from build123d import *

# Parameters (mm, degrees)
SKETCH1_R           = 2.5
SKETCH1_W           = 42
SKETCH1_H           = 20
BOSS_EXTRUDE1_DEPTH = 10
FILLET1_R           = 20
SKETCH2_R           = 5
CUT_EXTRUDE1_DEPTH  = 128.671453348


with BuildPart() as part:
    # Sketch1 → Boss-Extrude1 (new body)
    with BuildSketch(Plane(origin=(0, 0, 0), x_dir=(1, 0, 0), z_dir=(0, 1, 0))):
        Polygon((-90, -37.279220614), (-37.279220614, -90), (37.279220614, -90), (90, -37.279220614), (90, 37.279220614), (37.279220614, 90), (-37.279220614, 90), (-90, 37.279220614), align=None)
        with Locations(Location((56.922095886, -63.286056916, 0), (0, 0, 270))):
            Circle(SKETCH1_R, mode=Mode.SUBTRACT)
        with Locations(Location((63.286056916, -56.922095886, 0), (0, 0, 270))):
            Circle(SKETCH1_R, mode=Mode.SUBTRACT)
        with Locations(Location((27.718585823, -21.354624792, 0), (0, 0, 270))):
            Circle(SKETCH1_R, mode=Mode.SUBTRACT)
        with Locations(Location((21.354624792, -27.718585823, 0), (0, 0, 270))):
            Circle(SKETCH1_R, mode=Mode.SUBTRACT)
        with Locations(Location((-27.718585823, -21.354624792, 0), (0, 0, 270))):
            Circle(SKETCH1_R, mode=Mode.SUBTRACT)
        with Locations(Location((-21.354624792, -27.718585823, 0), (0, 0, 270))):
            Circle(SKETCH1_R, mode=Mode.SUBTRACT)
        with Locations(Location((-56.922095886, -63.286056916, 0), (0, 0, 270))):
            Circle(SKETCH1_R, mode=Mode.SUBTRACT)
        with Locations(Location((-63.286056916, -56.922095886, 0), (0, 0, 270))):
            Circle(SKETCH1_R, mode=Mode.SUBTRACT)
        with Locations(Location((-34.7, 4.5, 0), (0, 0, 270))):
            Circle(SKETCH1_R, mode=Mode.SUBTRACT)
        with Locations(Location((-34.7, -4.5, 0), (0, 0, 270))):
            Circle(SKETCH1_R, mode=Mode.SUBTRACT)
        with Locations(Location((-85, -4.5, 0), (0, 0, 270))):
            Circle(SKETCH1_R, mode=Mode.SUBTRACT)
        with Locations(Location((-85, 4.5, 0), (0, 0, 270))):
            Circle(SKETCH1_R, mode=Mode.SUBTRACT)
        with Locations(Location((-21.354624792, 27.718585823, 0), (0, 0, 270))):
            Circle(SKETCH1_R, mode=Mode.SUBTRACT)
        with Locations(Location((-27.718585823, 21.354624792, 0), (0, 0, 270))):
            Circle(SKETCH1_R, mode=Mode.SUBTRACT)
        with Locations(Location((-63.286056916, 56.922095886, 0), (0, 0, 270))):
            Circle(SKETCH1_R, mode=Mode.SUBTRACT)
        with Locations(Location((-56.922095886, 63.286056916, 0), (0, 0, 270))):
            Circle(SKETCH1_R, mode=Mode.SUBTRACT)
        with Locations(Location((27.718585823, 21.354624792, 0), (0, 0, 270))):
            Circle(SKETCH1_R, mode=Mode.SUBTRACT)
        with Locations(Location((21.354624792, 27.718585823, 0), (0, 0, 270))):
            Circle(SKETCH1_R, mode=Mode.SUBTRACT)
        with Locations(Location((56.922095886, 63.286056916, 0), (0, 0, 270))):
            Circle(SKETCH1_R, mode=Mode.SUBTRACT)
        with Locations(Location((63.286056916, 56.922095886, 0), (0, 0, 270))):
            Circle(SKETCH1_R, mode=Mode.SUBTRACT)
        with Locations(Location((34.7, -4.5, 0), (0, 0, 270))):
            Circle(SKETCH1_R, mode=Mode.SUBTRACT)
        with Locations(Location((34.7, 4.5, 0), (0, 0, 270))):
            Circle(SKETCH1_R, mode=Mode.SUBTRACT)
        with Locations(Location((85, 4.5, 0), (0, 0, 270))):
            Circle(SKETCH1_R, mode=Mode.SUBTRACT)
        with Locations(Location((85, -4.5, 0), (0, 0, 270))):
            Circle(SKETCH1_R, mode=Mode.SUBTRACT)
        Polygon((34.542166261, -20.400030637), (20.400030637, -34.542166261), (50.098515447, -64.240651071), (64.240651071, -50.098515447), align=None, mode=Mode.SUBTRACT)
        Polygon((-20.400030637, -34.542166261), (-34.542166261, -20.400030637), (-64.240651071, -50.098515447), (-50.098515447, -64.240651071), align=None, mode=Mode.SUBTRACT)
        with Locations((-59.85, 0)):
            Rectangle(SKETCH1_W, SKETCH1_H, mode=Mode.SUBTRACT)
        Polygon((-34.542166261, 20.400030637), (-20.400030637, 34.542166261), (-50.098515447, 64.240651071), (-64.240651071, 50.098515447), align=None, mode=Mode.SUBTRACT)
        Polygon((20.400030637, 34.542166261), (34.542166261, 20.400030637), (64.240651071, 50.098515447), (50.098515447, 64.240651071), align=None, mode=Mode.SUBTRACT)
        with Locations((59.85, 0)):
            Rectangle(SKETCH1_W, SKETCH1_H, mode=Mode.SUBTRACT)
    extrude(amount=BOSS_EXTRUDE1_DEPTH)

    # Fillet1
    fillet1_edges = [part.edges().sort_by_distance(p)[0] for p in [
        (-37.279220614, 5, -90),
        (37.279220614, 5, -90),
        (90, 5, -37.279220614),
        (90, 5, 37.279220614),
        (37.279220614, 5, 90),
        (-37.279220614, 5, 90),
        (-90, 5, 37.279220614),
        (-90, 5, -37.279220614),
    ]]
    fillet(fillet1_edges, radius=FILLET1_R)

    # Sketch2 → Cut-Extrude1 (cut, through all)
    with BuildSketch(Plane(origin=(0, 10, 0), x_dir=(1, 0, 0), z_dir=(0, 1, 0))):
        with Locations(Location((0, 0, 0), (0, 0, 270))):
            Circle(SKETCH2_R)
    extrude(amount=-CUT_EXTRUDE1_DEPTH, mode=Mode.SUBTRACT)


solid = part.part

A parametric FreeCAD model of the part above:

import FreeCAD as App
import Part
import Sketcher

V = App.Vector
Q = App.Units.Quantity


def edges_at(feature, points):
    """Names of the edges that pass closest to the given points."""
    edges = feature.Shape.Edges
    near = lambda p: min(range(len(edges)), key=lambda i: edges[i].distToShape(Part.Vertex(*p))[0])
    return sorted({f"Edge{near(p) + 1}" for p in points})


def add_polygon(sketch, points):
    """Adds a closed chain of lines whose ends are joined by coincident constraints."""
    first, n = sketch.GeometryCount, len(points)
    for a, b in zip(points, points[1:] + points[:1]):
        sketch.addGeometry(Part.LineSegment(App.Vector(*a, 0), App.Vector(*b, 0)), False)
    for i in range(n):
        sketch.addConstraint(Sketcher.Constraint("Coincident", first + i, 2, first + (i + 1) % n, 1))

doc = App.newDocument("Part")
params = doc.addObject("Spreadsheet::Sheet", "Params")
for row, (alias, value) in enumerate([
    ("sketch1_diameter", "5 mm"),
    ("sketch1_width", "42 mm"),
    ("sketch1_height", "20 mm"),
    ("sketch1_length", "20 mm"),
    ("sketch1_length2", "42 mm"),
    ("pad1_length", "10 mm"),
    ("fillet_radius", "20 mm"),
    ("sketch2_diameter", "10 mm"),
], start=1):
    params.set(f"A{row}", alias)
    params.set(f"B{row}", "=" + value)
    params.setAlias(f"B{row}", alias)

body = doc.addObject("PartDesign::Body", "Body")

# Sketch on XZ plane
sketch1 = body.newObject("Sketcher::SketchObject", "Sketch")
sketch1.AttachmentSupport = (doc.getObject("XZ_Plane"), [""])
sketch1.MapMode = "FlatFace"
add_polygon(sketch1, [(-90, 37.3), (-37.3, 90), (37.3, 90), (90, 37.3), (90, -37.3), (37.3, -90), (-37.3, -90), (-90, -37.3)])  # lines 0-7
sketch1.addGeometry(Part.Circle(V(-56.9, 63.3, 0), V(0, 0, 1), 2.5), False)  # 8
sketch1.addGeometry(Part.Circle(V(-63.3, 56.9, 0), V(0, 0, 1), 2.5), False)  # 9
add_polygon(sketch1, [(-34.5, 20.4), (-20.4, 34.5), (-50.1, 64.2), (-64.2, 50.1)])  # lines 10-13
sketch1.addGeometry(Part.Circle(V(-85, 4.5, 0), V(0, 0, 1), 2.5), False)  # 14
sketch1.addGeometry(Part.Circle(V(-27.7, 21.4, 0), V(0, 0, 1), 2.5), False)  # 15
sketch1.addGeometry(Part.Circle(V(-21.4, 27.7, 0), V(0, 0, 1), 2.5), False)  # 16
sketch1.addGeometry(Part.Circle(V(-34.7, 4.5, 0), V(0, 0, 1), 2.5), False)  # 17
add_polygon(sketch1, [(20.4, 34.5), (34.5, 20.4), (64.2, 50.1), (50.1, 64.2)])  # lines 18-21
sketch1.addGeometry(Part.Circle(V(56.9, 63.3, 0), V(0, 0, 1), 2.5), False)  # 22
sketch1.addGeometry(Part.Circle(V(63.3, 56.9, 0), V(0, 0, 1), 2.5), False)  # 23
sketch1.addGeometry(Part.Circle(V(21.4, 27.7, 0), V(0, 0, 1), 2.5), False)  # 24
sketch1.addGeometry(Part.Circle(V(27.7, 21.4, 0), V(0, 0, 1), 2.5), False)  # 25
sketch1.addGeometry(Part.Circle(V(34.7, 4.5, 0), V(0, 0, 1), 2.5), False)  # 26
sketch1.addGeometry(Part.Circle(V(85, 4.5, 0), V(0, 0, 1), 2.5), False)  # 27
sketch1.addGeometry(Part.Circle(V(-85, -4.5, 0), V(0, 0, 1), 2.5), False)  # 28
add_polygon(sketch1, [(-38.9, 10), (-80.8, 10), (-80.8, -10), (-38.9, -10)])  # lines 29-32
sketch1.addGeometry(Part.Circle(V(-34.7, -4.5, 0), V(0, 0, 1), 2.5), False)  # 33
sketch1.addGeometry(Part.Circle(V(-27.7, -21.4, 0), V(0, 0, 1), 2.5), False)  # 34
sketch1.addGeometry(Part.Circle(V(-21.4, -27.7, 0), V(0, 0, 1), 2.5), False)  # 35
sketch1.addGeometry(Part.Circle(V(-63.3, -56.9, 0), V(0, 0, 1), 2.5), False)  # 36
sketch1.addGeometry(Part.Circle(V(-56.9, -63.3, 0), V(0, 0, 1), 2.5), False)  # 37
add_polygon(sketch1, [(-20.4, -34.5), (-34.5, -20.4), (-64.2, -50.1), (-50.1, -64.2)])  # lines 38-41
sketch1.addGeometry(Part.Circle(V(34.7, -4.5, 0), V(0, 0, 1), 2.5), False)  # 42
sketch1.addGeometry(Part.Circle(V(21.4, -27.7, 0), V(0, 0, 1), 2.5), False)  # 43
sketch1.addGeometry(Part.Circle(V(27.7, -21.4, 0), V(0, 0, 1), 2.5), False)  # 44
add_polygon(sketch1, [(80.8, 10), (38.9, 10), (38.9, -10), (80.8, -10)])  # lines 45-48
sketch1.addGeometry(Part.Circle(V(85, -4.5, 0), V(0, 0, 1), 2.5), False)  # 49
add_polygon(sketch1, [(34.5, -20.4), (20.4, -34.5), (50.1, -64.2), (64.2, -50.1)])  # lines 50-53
sketch1.addGeometry(Part.Circle(V(63.3, -56.9, 0), V(0, 0, 1), 2.5), False)  # 54
sketch1.addGeometry(Part.Circle(V(56.9, -63.3, 0), V(0, 0, 1), 2.5), False)  # 55
sketch1.addConstraint(Sketcher.Constraint("Horizontal", 1))
sketch1.addConstraint(Sketcher.Constraint("Vertical", 3))
sketch1.addConstraint(Sketcher.Constraint("Horizontal", 5))
sketch1.addConstraint(Sketcher.Constraint("Vertical", 7))
sketch1.addConstraint(Sketcher.Constraint("Horizontal", 29))
sketch1.addConstraint(Sketcher.Constraint("Vertical", 30))
sketch1.addConstraint(Sketcher.Constraint("Horizontal", 31))
sketch1.addConstraint(Sketcher.Constraint("Vertical", 32))
sketch1.addConstraint(Sketcher.Constraint("Horizontal", 45))
sketch1.addConstraint(Sketcher.Constraint("Vertical", 46))
sketch1.addConstraint(Sketcher.Constraint("Horizontal", 47))
sketch1.addConstraint(Sketcher.Constraint("Vertical", 48))
sketch1.addConstraint(Sketcher.Constraint("Equal", 8, 9))
sketch1.addConstraint(Sketcher.Constraint("Equal", 9, 14))
sketch1.addConstraint(Sketcher.Constraint("Equal", 14, 15))
sketch1.addConstraint(Sketcher.Constraint("Equal", 15, 16))
sketch1.addConstraint(Sketcher.Constraint("Equal", 16, 17))
sketch1.addConstraint(Sketcher.Constraint("Equal", 17, 22))
sketch1.addConstraint(Sketcher.Constraint("Equal", 22, 23))
sketch1.addConstraint(Sketcher.Constraint("Equal", 23, 24))
sketch1.addConstraint(Sketcher.Constraint("Equal", 24, 25))
sketch1.addConstraint(Sketcher.Constraint("Equal", 25, 26))
sketch1.addConstraint(Sketcher.Constraint("Equal", 26, 27))
sketch1.addConstraint(Sketcher.Constraint("Equal", 27, 28))
sketch1.addConstraint(Sketcher.Constraint("Equal", 28, 33))
sketch1.addConstraint(Sketcher.Constraint("Equal", 33, 34))
sketch1.addConstraint(Sketcher.Constraint("Equal", 34, 35))
sketch1.addConstraint(Sketcher.Constraint("Equal", 35, 36))
sketch1.addConstraint(Sketcher.Constraint("Equal", 36, 37))
sketch1.addConstraint(Sketcher.Constraint("Equal", 37, 42))
sketch1.addConstraint(Sketcher.Constraint("Equal", 42, 43))
sketch1.addConstraint(Sketcher.Constraint("Equal", 43, 44))
sketch1.addConstraint(Sketcher.Constraint("Equal", 44, 49))
sketch1.addConstraint(Sketcher.Constraint("Equal", 49, 54))
sketch1.addConstraint(Sketcher.Constraint("Equal", 54, 55))
sketch1.addConstraint(Sketcher.Constraint("Symmetric", 27, 3, 28, 3, -1, 1))
sketch1.addConstraint(Sketcher.Constraint("Symmetric", 26, 3, 33, 3, -1, 1))
sketch1.addConstraint(Sketcher.Constraint("Symmetric", 25, 3, 34, 3, -1, 1))
sketch1.addConstraint(Sketcher.Constraint("Symmetric", 24, 3, 35, 3, -1, 1))
sketch1.addConstraint(Sketcher.Constraint("Symmetric", 23, 3, 36, 3, -1, 1))
sketch1.addConstraint(Sketcher.Constraint("Symmetric", 22, 3, 37, 3, -1, 1))
sketch1.addConstraint(Sketcher.Constraint("Symmetric", 17, 3, 42, 3, -1, 1))
sketch1.addConstraint(Sketcher.Constraint("Symmetric", 16, 3, 43, 3, -1, 1))
sketch1.addConstraint(Sketcher.Constraint("Symmetric", 15, 3, 44, 3, -1, 1))
sketch1.addConstraint(Sketcher.Constraint("Symmetric", 14, 3, 49, 3, -1, 1))
sketch1.addConstraint(Sketcher.Constraint("Symmetric", 9, 3, 54, 3, -1, 1))
sketch1.addConstraint(Sketcher.Constraint("Symmetric", 8, 3, 55, 3, -1, 1))
sketch1.addConstraint(Sketcher.Constraint("Symmetric", 0, 2, 4, 2, -1, 1))
sketch1.addConstraint(Sketcher.Constraint("Symmetric", 2, 2, 6, 2, -1, 1))
sketch1.addConstraint(Sketcher.Constraint("Symmetric", 18, 2, 38, 2, -1, 1))
sketch1.addConstraint(Sketcher.Constraint("Symmetric", 19, 2, 39, 2, -1, 1))
sketch1.addConstraint(Sketcher.Constraint("Symmetric", 20, 2, 40, 2, -1, 1))
sketch1.addConstraint(Sketcher.Constraint("Symmetric", 21, 2, 41, 2, -1, 1))
sketch1.addConstraint(Sketcher.Constraint("Symmetric", 31, 2, 45, 2, -1, 1))
sketch1.addConstraint(Sketcher.Constraint("Symmetric", 29, 2, 47, 2, -1, 1))
sketch1.addConstraint(Sketcher.Constraint("Symmetric", 10, 2, 50, 2, -1, 1))
sketch1.addConstraint(Sketcher.Constraint("Symmetric", 11, 2, 51, 2, -1, 1))
sketch1.addConstraint(Sketcher.Constraint("Symmetric", 12, 2, 52, 2, -1, 1))
sketch1.addConstraint(Sketcher.Constraint("Symmetric", 13, 2, 53, 2, -1, 1))
sketch1.addConstraint(Sketcher.Constraint("Symmetric", 8, 3, 22, 3, -2))
sketch1.addConstraint(Sketcher.Constraint("Symmetric", 9, 3, 23, 3, -2))
sketch1.addConstraint(Sketcher.Constraint("Symmetric", 16, 3, 24, 3, -2))
sketch1.addConstraint(Sketcher.Constraint("Symmetric", 15, 3, 25, 3, -2))
sketch1.addConstraint(Sketcher.Constraint("Symmetric", 17, 3, 26, 3, -2))
sketch1.addConstraint(Sketcher.Constraint("Symmetric", 14, 3, 27, 3, -2))
sketch1.addConstraint(Sketcher.Constraint("Symmetric", 13, 2, 18, 2, -2))
sketch1.addConstraint(Sketcher.Constraint("Symmetric", 12, 2, 19, 2, -2))
sketch1.addConstraint(Sketcher.Constraint("Symmetric", 11, 2, 20, 2, -2))
sketch1.addConstraint(Sketcher.Constraint("Symmetric", 10, 2, 21, 2, -2))
sketch1.addConstraint(Sketcher.Constraint("Perpendicular", 0, 2))
sketch1.addConstraint(Sketcher.Constraint("Perpendicular", 2, 4))
sketch1.addConstraint(Sketcher.Constraint("Perpendicular", 4, 6))
sketch1.addConstraint(Sketcher.Constraint("Perpendicular", 6, 10))
sketch1.addConstraint(Sketcher.Constraint("Perpendicular", 10, 11))
sketch1.addConstraint(Sketcher.Constraint("Perpendicular", 11, 12))
sketch1.addConstraint(Sketcher.Constraint("Perpendicular", 12, 13))
sketch1.addConstraint(Sketcher.Constraint("Parallel", 13, 18))
sketch1.addConstraint(Sketcher.Constraint("Horizontal", 14, 3, 17, 3))
sketch1.addConstraint(Sketcher.Constraint("Horizontal", 3, 2, 6, 2))
sketch1.addConstraint(Sketcher.Constraint("Horizontal", 32, 2, 45, 2))
sketch1.addConstraint(Sketcher.Constraint("Equal", 5, 3))
sketch1.addConstraint(Sketcher.Constraint("Diameter", 8, Q("5 mm")))
sketch1.addConstraint(Sketcher.Constraint("DistanceX", 29, 2, 29, 1, Q("42 mm")))
sketch1.addConstraint(Sketcher.Constraint("DistanceY", 30, 2, 30, 1, Q("20 mm")))
sketch1.addConstraint(Sketcher.Constraint("Distance", 10, Q("20 mm")))
sketch1.addConstraint(Sketcher.Constraint("Distance", 11, Q("42 mm")))
sketch1.addConstraint(Sketcher.Constraint("DistanceX", 14, 3, -1, 1, Q("85 mm")))
sketch1.addConstraint(Sketcher.Constraint("DistanceY", -1, 1, 0, 2, Q("90 mm")))
sketch1.addConstraint(Sketcher.Constraint("DistanceY", 28, 3, 14, 3, Q("9 mm")))
sketch1.addConstraint(Sketcher.Constraint("DistanceX", 17, 3, -1, 1, Q("34.7 mm")))
sketch1.addConstraint(Sketcher.Constraint("DistanceX", 29, 2, -1, 1, Q("80.85 mm")))
sketch1.addConstraint(Sketcher.Constraint("DistanceX", 1, 1, 1, 2, Q("74.558441 mm")))
sketch1.addConstraint(Sketcher.Constraint("DistanceX", 10, 2, -1, 1, Q("20.400031 mm")))
sketch1.addConstraint(Sketcher.Constraint("DistanceY", -1, 1, 11, 2, Q("64.240651 mm")))
sketch1.addConstraint(Sketcher.Constraint("DistanceX", 9, 3, 8, 3, Q("6.363961 mm")))
sketch1.addConstraint(Sketcher.Constraint("DistanceY", 9, 3, 8, 3, Q("6.363961 mm")))
sketch1.addConstraint(Sketcher.Constraint("DistanceX", 9, 3, 15, 3, Q("35.567471 mm")))
sketch1.addConstraint(Sketcher.Constraint("DistanceY", 15, 3, 9, 3, Q("35.567471 mm")))
sketch1.addConstraint(Sketcher.Constraint("DistanceX", 15, 3, 16, 3, Q("6.363961 mm")))
sketch1.addConstraint(Sketcher.Constraint("DistanceY", 15, 3, 16, 3, Q("6.363961 mm")))
sketch1.addConstraint(Sketcher.Constraint("DistanceX", 16, 3, 22, 3, Q("78.276721 mm")))
sketch1.addConstraint(Sketcher.Constraint("DistanceY", 34, 3, 15, 3, Q("42.70925 mm")))
sketch1.setExpression("Constraints[113]", "Params.sketch1_diameter")
sketch1.setExpression("Constraints[114]", "Params.sketch1_width")
sketch1.setExpression("Constraints[115]", "Params.sketch1_height")
sketch1.setExpression("Constraints[116]", "Params.sketch1_length")
sketch1.setExpression("Constraints[117]", "Params.sketch1_length2")
pad1 = body.newObject("PartDesign::Pad", "Pad")
pad1.Profile = sketch1
pad1.setExpression("Length", "Params.pad1_length")
pad1.Reversed = True
doc.recompute()

fillet = body.newObject("PartDesign::Fillet", "Fillet")
fillet.Base = (pad1, edges_at(pad1, [
    (-37.279, 5, -90),
    (37.279, 5, -90),
    (90, 5, -37.279),
    (90, 5, 37.279),
    (37.279, 5, 90),
    (-37.279, 5, 90),
    (-90, 5, 37.279),
    (-90, 5, -37.279),
]))
fillet.setExpression("Radius", "Params.fillet_radius")

# Sketch on XZ plane
sketch2 = body.newObject("Sketcher::SketchObject", "Sketch001")
sketch2.AttachmentSupport = (doc.getObject("XZ_Plane"), [""])
sketch2.MapMode = "FlatFace"
sketch2.AttachmentOffset = App.Placement(V(0, 0, -10), App.Rotation())
sketch2.addGeometry(Part.Circle(V(0, 0, 0), V(0, 0, 1), 5), False)
sketch2.addConstraint(Sketcher.Constraint("Coincident", 0, 3, -1, 1))
sketch2.addConstraint(Sketcher.Constraint("Diameter", 0, Q("10 mm")))
sketch2.setExpression("Constraints[1]", "Params.sketch2_diameter")
pocket1 = body.newObject("PartDesign::Pocket", "Pocket")
pocket1.Profile = sketch2
pocket1.Type = "ThroughAll"
pocket1.Reversed = True

doc.recompute()
